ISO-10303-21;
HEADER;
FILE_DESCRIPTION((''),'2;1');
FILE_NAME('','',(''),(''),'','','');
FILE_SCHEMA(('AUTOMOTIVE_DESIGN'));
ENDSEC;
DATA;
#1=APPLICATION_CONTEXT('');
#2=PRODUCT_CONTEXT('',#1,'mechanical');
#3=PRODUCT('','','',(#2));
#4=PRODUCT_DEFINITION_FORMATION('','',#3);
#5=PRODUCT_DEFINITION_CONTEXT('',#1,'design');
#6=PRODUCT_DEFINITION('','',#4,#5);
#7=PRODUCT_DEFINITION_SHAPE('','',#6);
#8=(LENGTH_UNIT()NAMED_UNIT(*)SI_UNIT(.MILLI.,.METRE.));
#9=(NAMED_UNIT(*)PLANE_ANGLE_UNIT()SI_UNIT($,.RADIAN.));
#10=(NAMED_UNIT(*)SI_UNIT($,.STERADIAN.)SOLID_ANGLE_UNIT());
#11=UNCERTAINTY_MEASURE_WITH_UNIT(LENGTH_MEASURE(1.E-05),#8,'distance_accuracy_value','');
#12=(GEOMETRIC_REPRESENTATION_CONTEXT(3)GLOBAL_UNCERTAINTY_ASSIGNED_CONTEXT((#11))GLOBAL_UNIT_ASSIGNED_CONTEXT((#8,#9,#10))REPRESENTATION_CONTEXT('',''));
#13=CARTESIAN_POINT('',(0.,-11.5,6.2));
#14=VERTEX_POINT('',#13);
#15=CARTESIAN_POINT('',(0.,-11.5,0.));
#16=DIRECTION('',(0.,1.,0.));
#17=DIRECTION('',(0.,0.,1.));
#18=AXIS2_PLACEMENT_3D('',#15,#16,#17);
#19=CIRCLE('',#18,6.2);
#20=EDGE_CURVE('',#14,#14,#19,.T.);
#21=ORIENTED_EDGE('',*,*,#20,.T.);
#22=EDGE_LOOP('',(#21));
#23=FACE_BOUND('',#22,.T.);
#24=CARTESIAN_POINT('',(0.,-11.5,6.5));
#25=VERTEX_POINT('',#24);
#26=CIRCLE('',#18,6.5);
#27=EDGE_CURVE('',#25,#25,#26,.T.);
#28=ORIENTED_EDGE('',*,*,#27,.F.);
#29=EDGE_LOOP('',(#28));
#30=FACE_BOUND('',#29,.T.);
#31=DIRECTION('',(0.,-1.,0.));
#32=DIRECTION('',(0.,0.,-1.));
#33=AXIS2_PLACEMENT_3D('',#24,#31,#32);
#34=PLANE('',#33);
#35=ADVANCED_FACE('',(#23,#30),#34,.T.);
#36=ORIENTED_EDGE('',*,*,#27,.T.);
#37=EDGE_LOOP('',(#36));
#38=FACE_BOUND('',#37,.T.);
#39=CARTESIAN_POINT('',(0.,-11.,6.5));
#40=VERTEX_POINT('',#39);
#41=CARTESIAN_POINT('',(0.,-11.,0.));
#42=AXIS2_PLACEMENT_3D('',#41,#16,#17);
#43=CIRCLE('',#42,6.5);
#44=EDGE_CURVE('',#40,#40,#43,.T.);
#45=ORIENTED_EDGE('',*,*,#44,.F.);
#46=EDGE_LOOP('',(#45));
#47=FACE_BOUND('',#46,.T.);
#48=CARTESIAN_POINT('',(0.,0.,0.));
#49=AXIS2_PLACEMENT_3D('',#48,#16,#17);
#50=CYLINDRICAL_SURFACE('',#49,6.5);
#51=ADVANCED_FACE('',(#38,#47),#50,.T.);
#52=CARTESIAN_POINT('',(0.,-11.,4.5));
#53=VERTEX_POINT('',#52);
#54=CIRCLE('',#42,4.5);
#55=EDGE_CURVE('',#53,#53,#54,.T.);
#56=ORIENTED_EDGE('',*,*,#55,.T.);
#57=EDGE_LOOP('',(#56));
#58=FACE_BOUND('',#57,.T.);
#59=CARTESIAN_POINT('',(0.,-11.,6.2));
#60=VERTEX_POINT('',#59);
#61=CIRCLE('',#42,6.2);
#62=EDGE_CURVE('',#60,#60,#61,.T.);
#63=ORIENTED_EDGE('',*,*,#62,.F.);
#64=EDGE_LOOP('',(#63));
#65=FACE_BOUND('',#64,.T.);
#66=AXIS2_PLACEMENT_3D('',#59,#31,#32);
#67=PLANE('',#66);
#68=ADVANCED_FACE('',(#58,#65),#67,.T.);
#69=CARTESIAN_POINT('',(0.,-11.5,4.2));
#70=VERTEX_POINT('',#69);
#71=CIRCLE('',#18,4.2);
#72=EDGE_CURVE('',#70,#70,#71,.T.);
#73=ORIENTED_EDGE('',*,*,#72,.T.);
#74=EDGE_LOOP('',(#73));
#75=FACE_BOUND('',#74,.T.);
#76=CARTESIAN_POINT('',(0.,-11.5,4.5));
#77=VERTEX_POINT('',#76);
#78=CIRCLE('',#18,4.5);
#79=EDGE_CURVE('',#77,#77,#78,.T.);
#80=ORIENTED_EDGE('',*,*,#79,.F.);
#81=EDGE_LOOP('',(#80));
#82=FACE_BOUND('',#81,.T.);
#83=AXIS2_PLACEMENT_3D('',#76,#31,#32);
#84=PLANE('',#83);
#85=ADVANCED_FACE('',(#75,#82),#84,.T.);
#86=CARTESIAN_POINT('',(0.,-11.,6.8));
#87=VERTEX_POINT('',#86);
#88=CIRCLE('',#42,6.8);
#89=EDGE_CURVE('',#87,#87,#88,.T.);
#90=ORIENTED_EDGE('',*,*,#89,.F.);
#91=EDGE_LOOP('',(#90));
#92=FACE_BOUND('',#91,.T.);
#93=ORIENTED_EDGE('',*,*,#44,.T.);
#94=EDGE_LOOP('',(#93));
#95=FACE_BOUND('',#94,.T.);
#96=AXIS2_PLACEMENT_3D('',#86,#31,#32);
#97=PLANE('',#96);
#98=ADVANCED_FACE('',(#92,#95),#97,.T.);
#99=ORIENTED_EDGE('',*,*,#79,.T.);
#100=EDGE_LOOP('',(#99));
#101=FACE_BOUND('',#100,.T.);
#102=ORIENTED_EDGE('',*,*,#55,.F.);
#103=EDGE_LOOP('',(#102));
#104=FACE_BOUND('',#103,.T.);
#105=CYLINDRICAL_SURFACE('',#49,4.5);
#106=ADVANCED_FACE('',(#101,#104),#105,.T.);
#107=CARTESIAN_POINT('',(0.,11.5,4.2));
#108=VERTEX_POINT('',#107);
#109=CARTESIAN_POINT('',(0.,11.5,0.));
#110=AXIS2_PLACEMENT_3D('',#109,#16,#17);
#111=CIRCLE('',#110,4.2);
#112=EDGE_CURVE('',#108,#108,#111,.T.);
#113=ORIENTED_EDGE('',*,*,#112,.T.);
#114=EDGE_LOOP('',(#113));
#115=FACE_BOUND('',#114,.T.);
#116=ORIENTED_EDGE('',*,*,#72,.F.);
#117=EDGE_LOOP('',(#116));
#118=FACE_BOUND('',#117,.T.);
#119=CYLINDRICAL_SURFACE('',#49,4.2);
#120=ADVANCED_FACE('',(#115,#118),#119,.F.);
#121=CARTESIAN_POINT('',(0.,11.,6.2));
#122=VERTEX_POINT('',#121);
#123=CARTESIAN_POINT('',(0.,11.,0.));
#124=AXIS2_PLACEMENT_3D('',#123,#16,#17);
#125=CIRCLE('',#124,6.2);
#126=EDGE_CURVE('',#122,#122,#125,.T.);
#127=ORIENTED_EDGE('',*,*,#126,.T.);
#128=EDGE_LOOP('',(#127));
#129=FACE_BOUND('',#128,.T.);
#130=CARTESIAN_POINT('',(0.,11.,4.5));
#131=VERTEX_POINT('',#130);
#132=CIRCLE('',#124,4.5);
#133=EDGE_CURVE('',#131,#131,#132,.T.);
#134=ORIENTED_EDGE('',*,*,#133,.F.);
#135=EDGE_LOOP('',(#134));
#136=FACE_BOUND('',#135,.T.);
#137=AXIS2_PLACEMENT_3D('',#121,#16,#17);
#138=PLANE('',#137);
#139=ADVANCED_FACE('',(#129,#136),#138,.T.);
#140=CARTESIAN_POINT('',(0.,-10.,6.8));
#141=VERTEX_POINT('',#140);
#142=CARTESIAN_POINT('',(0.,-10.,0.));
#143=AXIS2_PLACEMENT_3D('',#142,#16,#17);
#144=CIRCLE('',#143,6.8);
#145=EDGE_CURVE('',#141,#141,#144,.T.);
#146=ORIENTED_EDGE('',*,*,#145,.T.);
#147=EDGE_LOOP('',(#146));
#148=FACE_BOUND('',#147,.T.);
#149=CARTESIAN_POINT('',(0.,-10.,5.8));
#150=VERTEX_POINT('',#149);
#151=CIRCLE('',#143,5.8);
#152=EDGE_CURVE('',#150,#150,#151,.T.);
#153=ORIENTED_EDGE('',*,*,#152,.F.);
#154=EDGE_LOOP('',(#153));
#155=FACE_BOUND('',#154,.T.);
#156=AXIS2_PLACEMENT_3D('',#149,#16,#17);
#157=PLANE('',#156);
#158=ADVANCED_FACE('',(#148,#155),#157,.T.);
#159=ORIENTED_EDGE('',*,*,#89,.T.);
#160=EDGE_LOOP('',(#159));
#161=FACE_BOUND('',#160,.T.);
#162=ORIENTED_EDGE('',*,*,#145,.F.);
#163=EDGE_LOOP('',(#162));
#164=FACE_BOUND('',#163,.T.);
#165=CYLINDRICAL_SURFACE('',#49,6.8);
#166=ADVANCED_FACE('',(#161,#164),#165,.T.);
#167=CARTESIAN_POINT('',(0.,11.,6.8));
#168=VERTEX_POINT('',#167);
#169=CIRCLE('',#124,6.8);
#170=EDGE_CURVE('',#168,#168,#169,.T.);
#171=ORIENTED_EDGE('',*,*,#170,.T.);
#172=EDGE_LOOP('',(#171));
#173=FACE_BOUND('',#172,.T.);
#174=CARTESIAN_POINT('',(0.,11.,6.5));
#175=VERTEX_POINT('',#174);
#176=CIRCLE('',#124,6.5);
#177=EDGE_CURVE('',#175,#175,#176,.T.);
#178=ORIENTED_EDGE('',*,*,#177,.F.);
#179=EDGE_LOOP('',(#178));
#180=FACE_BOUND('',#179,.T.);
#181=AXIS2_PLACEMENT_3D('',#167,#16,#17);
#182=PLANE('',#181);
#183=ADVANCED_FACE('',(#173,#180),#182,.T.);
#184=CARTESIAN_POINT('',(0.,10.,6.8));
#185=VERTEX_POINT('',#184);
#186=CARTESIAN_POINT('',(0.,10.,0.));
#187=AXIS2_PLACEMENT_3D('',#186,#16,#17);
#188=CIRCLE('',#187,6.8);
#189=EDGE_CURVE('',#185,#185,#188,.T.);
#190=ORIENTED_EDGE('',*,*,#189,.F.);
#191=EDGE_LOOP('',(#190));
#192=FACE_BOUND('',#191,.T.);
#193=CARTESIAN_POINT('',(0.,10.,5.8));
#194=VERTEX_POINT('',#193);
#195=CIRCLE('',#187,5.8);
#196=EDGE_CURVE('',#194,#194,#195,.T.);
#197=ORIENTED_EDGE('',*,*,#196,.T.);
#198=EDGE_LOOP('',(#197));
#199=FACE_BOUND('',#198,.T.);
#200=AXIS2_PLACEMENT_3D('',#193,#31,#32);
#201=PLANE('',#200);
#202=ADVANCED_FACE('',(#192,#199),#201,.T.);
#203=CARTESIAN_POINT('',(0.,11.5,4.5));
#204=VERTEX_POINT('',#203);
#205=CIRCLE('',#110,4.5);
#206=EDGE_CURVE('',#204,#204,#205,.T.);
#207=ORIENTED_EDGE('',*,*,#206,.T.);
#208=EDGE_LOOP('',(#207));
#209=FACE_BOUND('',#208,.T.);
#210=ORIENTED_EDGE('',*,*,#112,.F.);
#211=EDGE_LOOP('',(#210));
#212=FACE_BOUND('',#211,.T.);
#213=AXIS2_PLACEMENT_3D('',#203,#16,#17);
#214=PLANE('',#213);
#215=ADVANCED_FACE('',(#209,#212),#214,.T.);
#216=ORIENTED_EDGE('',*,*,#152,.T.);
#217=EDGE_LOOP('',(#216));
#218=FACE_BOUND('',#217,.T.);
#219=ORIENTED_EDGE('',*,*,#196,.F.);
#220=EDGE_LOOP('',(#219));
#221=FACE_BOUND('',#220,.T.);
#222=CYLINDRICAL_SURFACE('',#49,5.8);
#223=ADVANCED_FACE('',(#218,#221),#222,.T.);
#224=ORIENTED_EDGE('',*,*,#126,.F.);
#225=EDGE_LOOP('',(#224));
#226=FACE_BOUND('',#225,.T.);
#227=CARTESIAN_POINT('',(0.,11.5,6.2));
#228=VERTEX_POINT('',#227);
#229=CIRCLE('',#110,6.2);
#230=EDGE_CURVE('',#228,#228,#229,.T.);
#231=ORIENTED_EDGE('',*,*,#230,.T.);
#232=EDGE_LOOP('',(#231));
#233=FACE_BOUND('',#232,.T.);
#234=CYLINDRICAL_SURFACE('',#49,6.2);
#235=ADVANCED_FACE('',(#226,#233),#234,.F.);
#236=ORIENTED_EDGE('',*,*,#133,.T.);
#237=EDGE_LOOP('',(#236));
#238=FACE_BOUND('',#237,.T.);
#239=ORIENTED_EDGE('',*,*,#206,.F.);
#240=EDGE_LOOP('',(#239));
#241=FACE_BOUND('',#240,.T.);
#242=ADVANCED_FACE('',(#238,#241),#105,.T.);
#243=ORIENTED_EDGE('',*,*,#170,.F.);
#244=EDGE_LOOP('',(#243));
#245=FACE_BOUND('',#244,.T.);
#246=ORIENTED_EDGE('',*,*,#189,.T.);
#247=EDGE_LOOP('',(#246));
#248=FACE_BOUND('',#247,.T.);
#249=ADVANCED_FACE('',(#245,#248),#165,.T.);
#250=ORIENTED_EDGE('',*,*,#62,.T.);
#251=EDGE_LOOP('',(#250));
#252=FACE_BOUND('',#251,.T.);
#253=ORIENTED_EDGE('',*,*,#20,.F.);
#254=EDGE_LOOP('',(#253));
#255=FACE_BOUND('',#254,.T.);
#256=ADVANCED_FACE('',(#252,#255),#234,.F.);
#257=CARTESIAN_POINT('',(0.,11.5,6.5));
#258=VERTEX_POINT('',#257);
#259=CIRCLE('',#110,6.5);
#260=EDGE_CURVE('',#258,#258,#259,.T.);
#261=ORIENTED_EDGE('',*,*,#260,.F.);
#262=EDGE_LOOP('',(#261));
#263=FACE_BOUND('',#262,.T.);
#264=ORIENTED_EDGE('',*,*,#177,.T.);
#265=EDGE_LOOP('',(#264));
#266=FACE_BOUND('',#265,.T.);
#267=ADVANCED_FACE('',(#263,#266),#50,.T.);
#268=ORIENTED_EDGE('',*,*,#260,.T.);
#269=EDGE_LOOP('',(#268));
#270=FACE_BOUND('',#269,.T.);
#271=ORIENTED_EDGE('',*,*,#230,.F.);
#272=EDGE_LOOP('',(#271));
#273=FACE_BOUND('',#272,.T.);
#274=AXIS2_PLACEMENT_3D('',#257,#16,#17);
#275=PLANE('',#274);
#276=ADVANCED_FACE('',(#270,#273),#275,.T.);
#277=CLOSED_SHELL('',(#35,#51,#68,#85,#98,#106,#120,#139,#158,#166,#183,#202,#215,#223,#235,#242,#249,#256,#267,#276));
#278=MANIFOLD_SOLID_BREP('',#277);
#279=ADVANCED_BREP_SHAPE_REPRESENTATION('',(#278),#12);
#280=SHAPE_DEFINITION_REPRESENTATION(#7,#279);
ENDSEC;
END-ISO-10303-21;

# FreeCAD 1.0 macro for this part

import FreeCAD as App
import Part
import Sketcher

V = App.Vector

doc = App.newDocument("Part")
body = doc.addObject("PartDesign::Body", "Body")

# Sketch on YZ plane
sketch1 = body.newObject("Sketcher::SketchObject", "Sketch")
sketch1.AttachmentSupport = (doc.getObject("YZ_Plane"), [""])
sketch1.MapMode = "FlatFace"
sketch1.addGeometry([
    Part.LineSegment(V(11.5, 4.2, 0), V(11.5, 4.5, 0)),  # 0
    Part.LineSegment(V(11.5, 4.5, 0), V(11, 4.5, 0)),  # 1
    Part.LineSegment(V(11, 4.5, 0), V(11, 6.2, 0)),  # 2
    Part.LineSegment(V(11, 6.2, 0), V(11.5, 6.2, 0)),  # 3
    Part.LineSegment(V(11.5, 6.2, 0), V(11.5, 6.5, 0)),  # 4
    Part.LineSegment(V(11.5, 6.5, 0), V(11, 6.5, 0)),  # 5
    Part.LineSegment(V(11, 6.5, 0), V(11, 6.8, 0)),  # 6
    Part.LineSegment(V(11, 6.8, 0), V(10, 6.8, 0)),  # 7
    Part.LineSegment(V(10, 6.8, 0), V(10, 5.8, 0)),  # 8
    Part.LineSegment(V(10, 5.8, 0), V(-10, 5.8, 0)),  # 9
    Part.LineSegment(V(-10, 5.8, 0), V(-10, 6.8, 0)),  # 10
    Part.LineSegment(V(-10, 6.8, 0), V(-11, 6.8, 0)),  # 11
    Part.LineSegment(V(-11, 6.8, 0), V(-11, 6.5, 0)),  # 12
    Part.LineSegment(V(-11, 6.5, 0), V(-11.5, 6.5, 0)),  # 13
    Part.LineSegment(V(-11.5, 6.5, 0), V(-11.5, 6.2, 0)),  # 14
    Part.LineSegment(V(-11.5, 6.2, 0), V(-11, 6.2, 0)),  # 15
    Part.LineSegment(V(-11, 6.2, 0), V(-11, 4.5, 0)),  # 16
    Part.LineSegment(V(-11, 4.5, 0), V(-11.5, 4.5, 0)),  # 17
    Part.LineSegment(V(-11.5, 4.5, 0), V(-11.5, 4.2, 0)),  # 18
    Part.LineSegment(V(-11.5, 4.2, 0), V(11.5, 4.2, 0)),  # 19
], False)
sketch1.addConstraint([
    Sketcher.Constraint("Coincident", 0, 2, 1, 1),
    Sketcher.Constraint("Coincident", 1, 2, 2, 1),
    Sketcher.Constraint("Coincident", 2, 2, 3, 1),
    Sketcher.Constraint("Coincident", 3, 2, 4, 1),
    Sketcher.Constraint("Coincident", 4, 2, 5, 1),
    Sketcher.Constraint("Coincident", 5, 2, 6, 1),
    Sketcher.Constraint("Coincident", 6, 2, 7, 1),
    Sketcher.Constraint("Coincident", 7, 2, 8, 1),
    Sketcher.Constraint("Coincident", 8, 2, 9, 1),
    Sketcher.Constraint("Coincident", 9, 2, 10, 1),
    Sketcher.Constraint("Coincident", 10, 2, 11, 1),
    Sketcher.Constraint("Coincident", 11, 2, 12, 1),
    Sketcher.Constraint("Coincident", 12, 2, 13, 1),
    Sketcher.Constraint("Coincident", 13, 2, 14, 1),
    Sketcher.Constraint("Coincident", 14, 2, 15, 1),
    Sketcher.Constraint("Coincident", 15, 2, 16, 1),
    Sketcher.Constraint("Coincident", 16, 2, 17, 1),
    Sketcher.Constraint("Coincident", 17, 2, 18, 1),
    Sketcher.Constraint("Coincident", 18, 2, 19, 1),
    Sketcher.Constraint("Coincident", 19, 2, 0, 1),
    Sketcher.Constraint("Vertical", 0),
    Sketcher.Constraint("Horizontal", 1),
    Sketcher.Constraint("Vertical", 2),
    Sketcher.Constraint("Horizontal", 3),
    Sketcher.Constraint("Vertical", 4),
    Sketcher.Constraint("Horizontal", 5),
    Sketcher.Constraint("Vertical", 6),
    Sketcher.Constraint("Horizontal", 7),
    Sketcher.Constraint("Vertical", 8),
    Sketcher.Constraint("Horizontal", 9),
    Sketcher.Constraint("Vertical", 10),
    Sketcher.Constraint("Horizontal", 11),
    Sketcher.Constraint("Vertical", 12),
    Sketcher.Constraint("Horizontal", 13),
    Sketcher.Constraint("Vertical", 14),
    Sketcher.Constraint("Horizontal", 15),
    Sketcher.Constraint("Vertical", 16),
    Sketcher.Constraint("Horizontal", 17),
    Sketcher.Constraint("Vertical", 18),
    Sketcher.Constraint("Horizontal", 19),
    Sketcher.Constraint("Symmetric", 7, 2, 10, 2, -2),
    Sketcher.Constraint("Symmetric", 5, 2, 12, 2, -2),
    Sketcher.Constraint("Symmetric", 3, 2, 14, 2, -2),
    Sketcher.Constraint("Symmetric", 1, 2, 16, 2, -2),
    Sketcher.Constraint("Vertical", 0, 2, 3, 2),
    Sketcher.Constraint("Vertical", 2, 2, 5, 2),
    Sketcher.Constraint("Vertical", 14, 2, 17, 2),
    Sketcher.Constraint("Equal", 0, 4),
    Sketcher.Constraint("Equal", 4, 6),
    Sketcher.Constraint("Equal", 11, 8),
    Sketcher.Constraint("DistanceX", 7, 2, 7, 1, 1.0),
    Sketcher.Constraint("DistanceX", 9, 2, 9, 1, 20.0),
    Sketcher.Constraint("DistanceX", 19, 1, 19, 2, 23.0),
    Sketcher.Constraint("DistanceY", 0, 1, 0, 2, 0.3),
    Sketcher.Constraint("DistanceY", 2, 1, 2, 2, 1.7),
    Sketcher.Constraint("DistanceY", -1, 1, 0, 2, 4.5),
])
revolution = body.newObject("PartDesign::Revolution", "Revolution")
revolution.Profile = sketch1
revolution.ReferenceAxis = (sketch1, ["H_Axis"])
revolution.Angle = 360

doc.recompute()
